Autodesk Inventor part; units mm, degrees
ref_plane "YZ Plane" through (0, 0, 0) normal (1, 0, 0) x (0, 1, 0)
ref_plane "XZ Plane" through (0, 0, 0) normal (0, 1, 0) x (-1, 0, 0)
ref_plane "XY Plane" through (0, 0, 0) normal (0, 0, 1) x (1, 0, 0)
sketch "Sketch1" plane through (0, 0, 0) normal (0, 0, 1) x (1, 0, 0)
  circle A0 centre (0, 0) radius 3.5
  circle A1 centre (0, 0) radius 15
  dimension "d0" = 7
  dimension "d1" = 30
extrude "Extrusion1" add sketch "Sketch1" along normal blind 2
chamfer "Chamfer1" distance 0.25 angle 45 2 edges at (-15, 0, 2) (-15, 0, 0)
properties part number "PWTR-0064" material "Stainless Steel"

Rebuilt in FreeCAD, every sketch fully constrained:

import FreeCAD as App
import Part
import Sketcher
from FreeCAD import Vector


def edges_at(feature, points):
    """Names of the edges that pass closest to the given points."""
    edges = feature.Shape.Edges
    near = lambda p: min(range(len(edges)), key=lambda i: edges[i].distToShape(Part.Vertex(*p))[0])
    return sorted({f"Edge{near(p) + 1}" for p in points})

doc = App.newDocument("Part")
body = doc.addObject("PartDesign::Body", "Body")

sketch1 = body.newObject("Sketcher::SketchObject", "Sketch")
sketch1.AttachmentSupport = (doc.getObject("XY_Plane"), [""])
sketch1.MapMode = "FlatFace"
sketch1.addGeometry([
    Part.Circle(Vector(0, 0, 0), Vector(0, 0, 1), 15),
    Part.Circle(Vector(0, 0, 0), Vector(0, 0, 1), 3.5),
], False)
sketch1.addConstraint([
    Sketcher.Constraint("Coincident", 0, 3, -1, 1),
    Sketcher.Constraint("Coincident", 1, 3, -1, 1),
    Sketcher.Constraint("Diameter", 0, 30.0),
    Sketcher.Constraint("Diameter", 1, 7.0),
])
pad1 = body.newObject("PartDesign::Pad", "Pad")
pad1.Profile = sketch1
pad1.Length = 2
doc.recompute()

chamfer = body.newObject("PartDesign::Chamfer", "Chamfer")
chamfer.Base = (pad1, edges_at(pad1, [(-15, 0, 2), (-15, 0, 0)]))
chamfer.Size = 0.25

doc.recompute()
